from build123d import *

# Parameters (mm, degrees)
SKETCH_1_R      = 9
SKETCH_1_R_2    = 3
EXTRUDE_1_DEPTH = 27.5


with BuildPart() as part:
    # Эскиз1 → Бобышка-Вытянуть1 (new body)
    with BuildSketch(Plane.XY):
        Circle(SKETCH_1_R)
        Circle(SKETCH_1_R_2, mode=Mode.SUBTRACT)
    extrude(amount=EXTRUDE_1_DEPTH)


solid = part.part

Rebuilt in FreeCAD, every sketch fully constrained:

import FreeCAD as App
import Part
import Sketcher

V = App.Vector

doc = App.newDocument("Part")
body = doc.addObject("PartDesign::Body", "Body")

# Sketch on XY plane
sketch1 = body.newObject("Sketcher::SketchObject", "Sketch")
sketch1.AttachmentSupport = (doc.getObject("XY_Plane"), [""])
sketch1.MapMode = "FlatFace"
sketch1.addGeometry([
    Part.Circle(V(0, 0, 0), V(0, 0, 1), 9),
    Part.Circle(V(0, 0, 0), V(0, 0, 1), 3),
], False)
sketch1.addConstraint([
    Sketcher.Constraint("Coincident", 0, 3, -1, 1),
    Sketcher.Constraint("Coincident", 1, 3, -1, 1),
    Sketcher.Constraint("Diameter", 0, 18.0),
    Sketcher.Constraint("Diameter", 1, 6.0),
])
pad1 = body.newObject("PartDesign::Pad", "Pad")
pad1.Profile = sketch1
pad1.Length = 27.5

doc.recompute()
